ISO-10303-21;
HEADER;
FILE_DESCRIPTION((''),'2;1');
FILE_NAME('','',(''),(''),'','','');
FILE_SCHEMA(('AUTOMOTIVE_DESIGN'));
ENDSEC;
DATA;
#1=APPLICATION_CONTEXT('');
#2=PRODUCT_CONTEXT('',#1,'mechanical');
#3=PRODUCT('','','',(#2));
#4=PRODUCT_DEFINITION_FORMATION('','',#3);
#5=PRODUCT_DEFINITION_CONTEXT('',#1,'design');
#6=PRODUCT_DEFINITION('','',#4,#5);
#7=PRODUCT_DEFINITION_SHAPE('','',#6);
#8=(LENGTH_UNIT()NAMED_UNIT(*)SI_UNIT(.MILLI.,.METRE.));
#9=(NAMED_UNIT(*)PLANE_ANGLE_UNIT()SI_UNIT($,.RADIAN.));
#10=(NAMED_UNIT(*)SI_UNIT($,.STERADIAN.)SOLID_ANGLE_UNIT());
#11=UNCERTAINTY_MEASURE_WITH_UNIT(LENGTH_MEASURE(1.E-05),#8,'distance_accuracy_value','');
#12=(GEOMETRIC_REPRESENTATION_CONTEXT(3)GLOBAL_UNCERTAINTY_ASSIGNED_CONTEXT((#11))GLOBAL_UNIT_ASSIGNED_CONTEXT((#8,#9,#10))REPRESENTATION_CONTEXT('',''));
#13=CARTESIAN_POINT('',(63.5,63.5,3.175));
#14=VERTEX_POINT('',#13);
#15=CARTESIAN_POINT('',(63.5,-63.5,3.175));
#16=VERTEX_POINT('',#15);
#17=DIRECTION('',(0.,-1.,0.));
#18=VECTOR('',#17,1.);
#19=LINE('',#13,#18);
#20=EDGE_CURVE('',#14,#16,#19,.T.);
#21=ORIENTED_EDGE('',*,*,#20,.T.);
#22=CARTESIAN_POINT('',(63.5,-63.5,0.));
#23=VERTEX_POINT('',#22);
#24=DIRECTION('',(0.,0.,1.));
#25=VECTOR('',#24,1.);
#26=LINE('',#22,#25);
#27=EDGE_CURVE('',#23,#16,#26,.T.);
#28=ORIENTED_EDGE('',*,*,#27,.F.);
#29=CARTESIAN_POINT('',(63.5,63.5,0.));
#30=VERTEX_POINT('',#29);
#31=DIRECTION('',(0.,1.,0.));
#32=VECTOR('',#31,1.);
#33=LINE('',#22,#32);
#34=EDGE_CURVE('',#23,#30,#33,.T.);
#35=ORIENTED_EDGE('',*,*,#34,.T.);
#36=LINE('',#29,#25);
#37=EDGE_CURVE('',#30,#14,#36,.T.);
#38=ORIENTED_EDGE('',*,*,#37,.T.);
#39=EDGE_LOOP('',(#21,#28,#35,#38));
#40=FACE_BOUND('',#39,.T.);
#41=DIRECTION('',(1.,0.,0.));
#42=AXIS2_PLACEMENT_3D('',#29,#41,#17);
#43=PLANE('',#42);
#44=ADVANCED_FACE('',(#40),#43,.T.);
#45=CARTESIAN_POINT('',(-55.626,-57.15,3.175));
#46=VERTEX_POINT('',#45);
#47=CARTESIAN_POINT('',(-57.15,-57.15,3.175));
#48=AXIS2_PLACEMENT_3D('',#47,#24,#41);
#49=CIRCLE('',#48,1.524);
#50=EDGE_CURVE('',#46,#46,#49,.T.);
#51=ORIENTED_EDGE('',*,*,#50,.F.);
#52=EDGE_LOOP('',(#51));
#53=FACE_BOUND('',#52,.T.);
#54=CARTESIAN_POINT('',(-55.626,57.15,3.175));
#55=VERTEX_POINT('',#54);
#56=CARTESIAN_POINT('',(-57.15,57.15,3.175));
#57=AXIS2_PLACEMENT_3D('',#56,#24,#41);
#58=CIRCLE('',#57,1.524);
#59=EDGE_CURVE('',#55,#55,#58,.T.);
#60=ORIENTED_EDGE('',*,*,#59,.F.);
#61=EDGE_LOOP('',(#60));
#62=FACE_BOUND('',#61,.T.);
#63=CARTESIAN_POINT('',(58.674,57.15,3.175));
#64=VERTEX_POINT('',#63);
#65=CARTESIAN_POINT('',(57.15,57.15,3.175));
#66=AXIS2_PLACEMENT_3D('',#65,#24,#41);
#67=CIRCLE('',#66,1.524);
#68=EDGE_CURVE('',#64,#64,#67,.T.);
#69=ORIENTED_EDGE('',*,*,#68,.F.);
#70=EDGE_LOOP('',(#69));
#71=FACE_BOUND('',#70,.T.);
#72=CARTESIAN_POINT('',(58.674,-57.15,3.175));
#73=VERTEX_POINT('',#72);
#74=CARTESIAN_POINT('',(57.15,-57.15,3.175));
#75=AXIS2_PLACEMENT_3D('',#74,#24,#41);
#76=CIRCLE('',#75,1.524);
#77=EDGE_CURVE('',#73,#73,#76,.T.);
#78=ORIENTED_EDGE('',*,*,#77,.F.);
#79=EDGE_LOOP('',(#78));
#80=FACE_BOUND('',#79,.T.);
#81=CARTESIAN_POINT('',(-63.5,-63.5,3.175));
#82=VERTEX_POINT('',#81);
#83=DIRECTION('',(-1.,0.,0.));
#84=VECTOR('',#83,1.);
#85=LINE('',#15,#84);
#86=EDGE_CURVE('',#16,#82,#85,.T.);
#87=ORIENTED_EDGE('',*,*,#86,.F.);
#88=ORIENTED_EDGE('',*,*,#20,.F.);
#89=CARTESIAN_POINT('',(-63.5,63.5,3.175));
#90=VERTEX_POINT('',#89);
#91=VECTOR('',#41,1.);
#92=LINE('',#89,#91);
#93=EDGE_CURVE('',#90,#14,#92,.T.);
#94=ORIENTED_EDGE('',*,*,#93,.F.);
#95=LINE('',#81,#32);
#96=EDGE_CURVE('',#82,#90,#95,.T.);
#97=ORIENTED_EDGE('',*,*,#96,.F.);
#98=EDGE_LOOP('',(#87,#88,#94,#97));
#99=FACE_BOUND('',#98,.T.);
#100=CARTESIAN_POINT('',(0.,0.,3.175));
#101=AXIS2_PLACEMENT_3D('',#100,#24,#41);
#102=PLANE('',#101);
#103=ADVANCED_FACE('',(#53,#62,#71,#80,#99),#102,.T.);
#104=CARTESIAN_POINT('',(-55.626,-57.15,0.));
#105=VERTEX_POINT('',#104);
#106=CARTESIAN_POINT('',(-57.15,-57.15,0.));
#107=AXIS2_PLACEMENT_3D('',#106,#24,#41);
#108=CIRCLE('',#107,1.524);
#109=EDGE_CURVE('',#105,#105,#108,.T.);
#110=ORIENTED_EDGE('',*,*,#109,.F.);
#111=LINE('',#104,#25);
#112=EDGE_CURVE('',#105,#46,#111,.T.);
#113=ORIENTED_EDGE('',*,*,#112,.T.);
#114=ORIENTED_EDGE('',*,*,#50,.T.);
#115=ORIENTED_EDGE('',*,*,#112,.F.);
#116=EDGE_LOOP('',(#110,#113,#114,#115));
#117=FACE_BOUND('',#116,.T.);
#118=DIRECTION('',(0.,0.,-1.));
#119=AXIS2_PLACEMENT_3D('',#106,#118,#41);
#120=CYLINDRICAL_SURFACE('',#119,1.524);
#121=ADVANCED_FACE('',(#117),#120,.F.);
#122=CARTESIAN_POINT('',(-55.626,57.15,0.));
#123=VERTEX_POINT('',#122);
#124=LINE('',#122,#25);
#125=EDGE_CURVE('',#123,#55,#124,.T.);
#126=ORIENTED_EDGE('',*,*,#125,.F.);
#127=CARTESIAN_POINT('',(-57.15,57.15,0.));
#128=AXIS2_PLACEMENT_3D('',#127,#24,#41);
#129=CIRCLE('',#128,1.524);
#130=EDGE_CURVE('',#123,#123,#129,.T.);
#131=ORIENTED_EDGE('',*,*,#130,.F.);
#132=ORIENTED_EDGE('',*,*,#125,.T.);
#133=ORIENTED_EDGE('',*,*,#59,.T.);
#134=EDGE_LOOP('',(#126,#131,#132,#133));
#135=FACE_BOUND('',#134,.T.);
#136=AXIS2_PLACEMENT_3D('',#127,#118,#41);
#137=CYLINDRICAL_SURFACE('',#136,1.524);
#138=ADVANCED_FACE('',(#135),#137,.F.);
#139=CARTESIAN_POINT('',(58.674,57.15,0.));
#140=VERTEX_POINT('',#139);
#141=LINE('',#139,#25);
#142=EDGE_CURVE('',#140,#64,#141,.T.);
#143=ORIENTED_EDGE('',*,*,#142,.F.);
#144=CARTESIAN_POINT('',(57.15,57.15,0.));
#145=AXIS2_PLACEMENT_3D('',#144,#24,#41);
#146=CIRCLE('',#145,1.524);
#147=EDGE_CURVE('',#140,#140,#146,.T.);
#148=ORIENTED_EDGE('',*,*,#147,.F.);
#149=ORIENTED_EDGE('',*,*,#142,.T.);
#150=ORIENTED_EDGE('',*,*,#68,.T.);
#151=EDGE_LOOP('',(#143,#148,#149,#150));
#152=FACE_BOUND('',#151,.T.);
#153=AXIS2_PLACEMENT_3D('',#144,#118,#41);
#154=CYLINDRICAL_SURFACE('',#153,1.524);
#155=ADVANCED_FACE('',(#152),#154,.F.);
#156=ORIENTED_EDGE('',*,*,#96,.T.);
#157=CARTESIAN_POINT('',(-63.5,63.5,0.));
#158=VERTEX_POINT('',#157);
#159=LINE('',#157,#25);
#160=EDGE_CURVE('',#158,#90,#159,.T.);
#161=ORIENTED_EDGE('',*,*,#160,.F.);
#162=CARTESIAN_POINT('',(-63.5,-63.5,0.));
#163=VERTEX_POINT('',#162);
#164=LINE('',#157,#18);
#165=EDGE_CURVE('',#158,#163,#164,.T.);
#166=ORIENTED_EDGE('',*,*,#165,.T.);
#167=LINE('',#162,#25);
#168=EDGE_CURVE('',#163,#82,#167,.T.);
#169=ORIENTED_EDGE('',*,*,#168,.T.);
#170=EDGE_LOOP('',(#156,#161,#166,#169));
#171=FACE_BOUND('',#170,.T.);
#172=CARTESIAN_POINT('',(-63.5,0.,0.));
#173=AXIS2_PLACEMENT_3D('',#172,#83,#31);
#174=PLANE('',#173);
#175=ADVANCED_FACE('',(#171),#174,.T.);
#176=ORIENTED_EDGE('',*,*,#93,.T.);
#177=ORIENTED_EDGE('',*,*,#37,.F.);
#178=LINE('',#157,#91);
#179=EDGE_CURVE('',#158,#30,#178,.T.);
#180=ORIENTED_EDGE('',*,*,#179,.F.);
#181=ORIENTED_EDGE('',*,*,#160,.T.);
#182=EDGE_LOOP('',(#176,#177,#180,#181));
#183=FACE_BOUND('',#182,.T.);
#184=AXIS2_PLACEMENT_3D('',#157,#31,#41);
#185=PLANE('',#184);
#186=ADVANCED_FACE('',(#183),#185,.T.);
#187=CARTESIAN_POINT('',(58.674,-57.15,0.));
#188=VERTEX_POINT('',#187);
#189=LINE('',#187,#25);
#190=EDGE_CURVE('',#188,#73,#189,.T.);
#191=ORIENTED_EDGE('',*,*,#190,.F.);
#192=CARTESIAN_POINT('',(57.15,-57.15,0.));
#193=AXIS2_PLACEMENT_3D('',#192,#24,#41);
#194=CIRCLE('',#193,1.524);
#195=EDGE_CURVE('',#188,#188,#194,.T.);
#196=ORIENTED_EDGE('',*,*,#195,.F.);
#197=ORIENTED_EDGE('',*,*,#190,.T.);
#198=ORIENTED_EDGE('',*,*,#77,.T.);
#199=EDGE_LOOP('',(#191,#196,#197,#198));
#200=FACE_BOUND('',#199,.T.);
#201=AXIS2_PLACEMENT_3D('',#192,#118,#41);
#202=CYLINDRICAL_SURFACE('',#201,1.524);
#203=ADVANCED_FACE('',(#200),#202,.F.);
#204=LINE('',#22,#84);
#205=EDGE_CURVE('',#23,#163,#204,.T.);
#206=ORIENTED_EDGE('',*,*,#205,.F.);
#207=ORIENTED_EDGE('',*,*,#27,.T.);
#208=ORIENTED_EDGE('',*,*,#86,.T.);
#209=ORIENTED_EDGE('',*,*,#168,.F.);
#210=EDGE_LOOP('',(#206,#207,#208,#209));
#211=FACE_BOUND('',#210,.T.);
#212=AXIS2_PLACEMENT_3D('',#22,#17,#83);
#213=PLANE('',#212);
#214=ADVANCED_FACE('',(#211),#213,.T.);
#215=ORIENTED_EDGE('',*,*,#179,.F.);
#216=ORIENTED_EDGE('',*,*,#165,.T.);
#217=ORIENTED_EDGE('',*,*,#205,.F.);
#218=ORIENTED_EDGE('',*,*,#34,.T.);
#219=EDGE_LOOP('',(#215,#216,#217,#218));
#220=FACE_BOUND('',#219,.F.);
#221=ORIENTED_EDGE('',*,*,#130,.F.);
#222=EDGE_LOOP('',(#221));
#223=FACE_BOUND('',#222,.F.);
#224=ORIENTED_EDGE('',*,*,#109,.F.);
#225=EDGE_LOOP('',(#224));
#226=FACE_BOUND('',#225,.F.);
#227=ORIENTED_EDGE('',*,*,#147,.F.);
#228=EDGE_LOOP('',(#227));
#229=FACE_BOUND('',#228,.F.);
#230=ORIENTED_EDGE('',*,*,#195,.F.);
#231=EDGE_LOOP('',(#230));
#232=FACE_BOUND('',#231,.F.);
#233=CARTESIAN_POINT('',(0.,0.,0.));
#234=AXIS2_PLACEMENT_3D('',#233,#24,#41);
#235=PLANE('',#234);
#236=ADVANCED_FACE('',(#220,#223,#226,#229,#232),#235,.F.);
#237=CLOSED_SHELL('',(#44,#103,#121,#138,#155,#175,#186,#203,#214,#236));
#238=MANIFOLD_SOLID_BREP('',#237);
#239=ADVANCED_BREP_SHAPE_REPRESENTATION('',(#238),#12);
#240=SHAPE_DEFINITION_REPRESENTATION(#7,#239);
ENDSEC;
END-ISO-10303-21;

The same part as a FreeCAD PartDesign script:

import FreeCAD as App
import Part
import Sketcher

V = App.Vector
Q = App.Units.Quantity

doc = App.newDocument("Part")
body = doc.addObject("PartDesign::Body", "Body")

# Sketch on XY plane
sketch1 = body.newObject("Sketcher::SketchObject", "Sketch")
sketch1.AttachmentSupport = (doc.getObject("XY_Plane"), [""])
sketch1.MapMode = "FlatFace"
sketch1.addGeometry([
    Part.LineSegment(V(63.5, 63.5, 0), V(-63.5, 63.5, 0)),  # 0
    Part.LineSegment(V(-63.5, 63.5, 0), V(-63.5, -63.5, 0)),  # 1
    Part.LineSegment(V(-63.5, -63.5, 0), V(63.5, -63.5, 0)),  # 2
    Part.LineSegment(V(63.5, -63.5, 0), V(63.5, 63.5, 0)),  # 3
    Part.Circle(V(-57.15, 57.15, 0), V(0, 0, 1), 1.524),  # 4
    Part.Circle(V(57.15, 57.15, 0), V(0, 0, 1), 1.524),  # 5
    Part.Circle(V(57.15, -57.15, 0), V(0, 0, 1), 1.524),  # 6
    Part.Circle(V(-57.15, -57.15, 0), V(0, 0, 1), 1.524),  # 7
], False)
sketch1.addConstraint([
    Sketcher.Constraint("Coincident", 0, 2, 1, 1),
    Sketcher.Constraint("Coincident", 1, 2, 2, 1),
    Sketcher.Constraint("Coincident", 2, 2, 3, 1),
    Sketcher.Constraint("Coincident", 3, 2, 0, 1),
    Sketcher.Constraint("Horizontal", 0),
    Sketcher.Constraint("Vertical", 1),
    Sketcher.Constraint("Horizontal", 2),
    Sketcher.Constraint("Vertical", 3),
    Sketcher.Constraint("Equal", 4, 5),
    Sketcher.Constraint("Equal", 5, 6),
    Sketcher.Constraint("Equal", 6, 7),
    Sketcher.Constraint("Symmetric", 4, 3, 6, 3, -1, 1),
    Sketcher.Constraint("Symmetric", 5, 3, 7, 3, -1, 1),
    Sketcher.Constraint("Symmetric", 0, 2, 2, 2, -1, 1),
    Sketcher.Constraint("Symmetric", 4, 3, 5, 3, -2),
    Sketcher.Constraint("Equal", 2, 1),
    Sketcher.Constraint("Diameter", 4, Q("0.12 in")),
    Sketcher.Constraint("DistanceX", 0, 2, 0, 1, Q("5 in")),
    Sketcher.Constraint("DistanceX", 0, 2, 4, 3, Q("0.25 in")),
    Sketcher.Constraint("DistanceY", 4, 3, 0, 2, Q("0.25 in")),
])
pad1 = body.newObject("PartDesign::Pad", "Pad")
pad1.Profile = sketch1
pad1.Length = Q("0.125 in")

doc.recompute()
